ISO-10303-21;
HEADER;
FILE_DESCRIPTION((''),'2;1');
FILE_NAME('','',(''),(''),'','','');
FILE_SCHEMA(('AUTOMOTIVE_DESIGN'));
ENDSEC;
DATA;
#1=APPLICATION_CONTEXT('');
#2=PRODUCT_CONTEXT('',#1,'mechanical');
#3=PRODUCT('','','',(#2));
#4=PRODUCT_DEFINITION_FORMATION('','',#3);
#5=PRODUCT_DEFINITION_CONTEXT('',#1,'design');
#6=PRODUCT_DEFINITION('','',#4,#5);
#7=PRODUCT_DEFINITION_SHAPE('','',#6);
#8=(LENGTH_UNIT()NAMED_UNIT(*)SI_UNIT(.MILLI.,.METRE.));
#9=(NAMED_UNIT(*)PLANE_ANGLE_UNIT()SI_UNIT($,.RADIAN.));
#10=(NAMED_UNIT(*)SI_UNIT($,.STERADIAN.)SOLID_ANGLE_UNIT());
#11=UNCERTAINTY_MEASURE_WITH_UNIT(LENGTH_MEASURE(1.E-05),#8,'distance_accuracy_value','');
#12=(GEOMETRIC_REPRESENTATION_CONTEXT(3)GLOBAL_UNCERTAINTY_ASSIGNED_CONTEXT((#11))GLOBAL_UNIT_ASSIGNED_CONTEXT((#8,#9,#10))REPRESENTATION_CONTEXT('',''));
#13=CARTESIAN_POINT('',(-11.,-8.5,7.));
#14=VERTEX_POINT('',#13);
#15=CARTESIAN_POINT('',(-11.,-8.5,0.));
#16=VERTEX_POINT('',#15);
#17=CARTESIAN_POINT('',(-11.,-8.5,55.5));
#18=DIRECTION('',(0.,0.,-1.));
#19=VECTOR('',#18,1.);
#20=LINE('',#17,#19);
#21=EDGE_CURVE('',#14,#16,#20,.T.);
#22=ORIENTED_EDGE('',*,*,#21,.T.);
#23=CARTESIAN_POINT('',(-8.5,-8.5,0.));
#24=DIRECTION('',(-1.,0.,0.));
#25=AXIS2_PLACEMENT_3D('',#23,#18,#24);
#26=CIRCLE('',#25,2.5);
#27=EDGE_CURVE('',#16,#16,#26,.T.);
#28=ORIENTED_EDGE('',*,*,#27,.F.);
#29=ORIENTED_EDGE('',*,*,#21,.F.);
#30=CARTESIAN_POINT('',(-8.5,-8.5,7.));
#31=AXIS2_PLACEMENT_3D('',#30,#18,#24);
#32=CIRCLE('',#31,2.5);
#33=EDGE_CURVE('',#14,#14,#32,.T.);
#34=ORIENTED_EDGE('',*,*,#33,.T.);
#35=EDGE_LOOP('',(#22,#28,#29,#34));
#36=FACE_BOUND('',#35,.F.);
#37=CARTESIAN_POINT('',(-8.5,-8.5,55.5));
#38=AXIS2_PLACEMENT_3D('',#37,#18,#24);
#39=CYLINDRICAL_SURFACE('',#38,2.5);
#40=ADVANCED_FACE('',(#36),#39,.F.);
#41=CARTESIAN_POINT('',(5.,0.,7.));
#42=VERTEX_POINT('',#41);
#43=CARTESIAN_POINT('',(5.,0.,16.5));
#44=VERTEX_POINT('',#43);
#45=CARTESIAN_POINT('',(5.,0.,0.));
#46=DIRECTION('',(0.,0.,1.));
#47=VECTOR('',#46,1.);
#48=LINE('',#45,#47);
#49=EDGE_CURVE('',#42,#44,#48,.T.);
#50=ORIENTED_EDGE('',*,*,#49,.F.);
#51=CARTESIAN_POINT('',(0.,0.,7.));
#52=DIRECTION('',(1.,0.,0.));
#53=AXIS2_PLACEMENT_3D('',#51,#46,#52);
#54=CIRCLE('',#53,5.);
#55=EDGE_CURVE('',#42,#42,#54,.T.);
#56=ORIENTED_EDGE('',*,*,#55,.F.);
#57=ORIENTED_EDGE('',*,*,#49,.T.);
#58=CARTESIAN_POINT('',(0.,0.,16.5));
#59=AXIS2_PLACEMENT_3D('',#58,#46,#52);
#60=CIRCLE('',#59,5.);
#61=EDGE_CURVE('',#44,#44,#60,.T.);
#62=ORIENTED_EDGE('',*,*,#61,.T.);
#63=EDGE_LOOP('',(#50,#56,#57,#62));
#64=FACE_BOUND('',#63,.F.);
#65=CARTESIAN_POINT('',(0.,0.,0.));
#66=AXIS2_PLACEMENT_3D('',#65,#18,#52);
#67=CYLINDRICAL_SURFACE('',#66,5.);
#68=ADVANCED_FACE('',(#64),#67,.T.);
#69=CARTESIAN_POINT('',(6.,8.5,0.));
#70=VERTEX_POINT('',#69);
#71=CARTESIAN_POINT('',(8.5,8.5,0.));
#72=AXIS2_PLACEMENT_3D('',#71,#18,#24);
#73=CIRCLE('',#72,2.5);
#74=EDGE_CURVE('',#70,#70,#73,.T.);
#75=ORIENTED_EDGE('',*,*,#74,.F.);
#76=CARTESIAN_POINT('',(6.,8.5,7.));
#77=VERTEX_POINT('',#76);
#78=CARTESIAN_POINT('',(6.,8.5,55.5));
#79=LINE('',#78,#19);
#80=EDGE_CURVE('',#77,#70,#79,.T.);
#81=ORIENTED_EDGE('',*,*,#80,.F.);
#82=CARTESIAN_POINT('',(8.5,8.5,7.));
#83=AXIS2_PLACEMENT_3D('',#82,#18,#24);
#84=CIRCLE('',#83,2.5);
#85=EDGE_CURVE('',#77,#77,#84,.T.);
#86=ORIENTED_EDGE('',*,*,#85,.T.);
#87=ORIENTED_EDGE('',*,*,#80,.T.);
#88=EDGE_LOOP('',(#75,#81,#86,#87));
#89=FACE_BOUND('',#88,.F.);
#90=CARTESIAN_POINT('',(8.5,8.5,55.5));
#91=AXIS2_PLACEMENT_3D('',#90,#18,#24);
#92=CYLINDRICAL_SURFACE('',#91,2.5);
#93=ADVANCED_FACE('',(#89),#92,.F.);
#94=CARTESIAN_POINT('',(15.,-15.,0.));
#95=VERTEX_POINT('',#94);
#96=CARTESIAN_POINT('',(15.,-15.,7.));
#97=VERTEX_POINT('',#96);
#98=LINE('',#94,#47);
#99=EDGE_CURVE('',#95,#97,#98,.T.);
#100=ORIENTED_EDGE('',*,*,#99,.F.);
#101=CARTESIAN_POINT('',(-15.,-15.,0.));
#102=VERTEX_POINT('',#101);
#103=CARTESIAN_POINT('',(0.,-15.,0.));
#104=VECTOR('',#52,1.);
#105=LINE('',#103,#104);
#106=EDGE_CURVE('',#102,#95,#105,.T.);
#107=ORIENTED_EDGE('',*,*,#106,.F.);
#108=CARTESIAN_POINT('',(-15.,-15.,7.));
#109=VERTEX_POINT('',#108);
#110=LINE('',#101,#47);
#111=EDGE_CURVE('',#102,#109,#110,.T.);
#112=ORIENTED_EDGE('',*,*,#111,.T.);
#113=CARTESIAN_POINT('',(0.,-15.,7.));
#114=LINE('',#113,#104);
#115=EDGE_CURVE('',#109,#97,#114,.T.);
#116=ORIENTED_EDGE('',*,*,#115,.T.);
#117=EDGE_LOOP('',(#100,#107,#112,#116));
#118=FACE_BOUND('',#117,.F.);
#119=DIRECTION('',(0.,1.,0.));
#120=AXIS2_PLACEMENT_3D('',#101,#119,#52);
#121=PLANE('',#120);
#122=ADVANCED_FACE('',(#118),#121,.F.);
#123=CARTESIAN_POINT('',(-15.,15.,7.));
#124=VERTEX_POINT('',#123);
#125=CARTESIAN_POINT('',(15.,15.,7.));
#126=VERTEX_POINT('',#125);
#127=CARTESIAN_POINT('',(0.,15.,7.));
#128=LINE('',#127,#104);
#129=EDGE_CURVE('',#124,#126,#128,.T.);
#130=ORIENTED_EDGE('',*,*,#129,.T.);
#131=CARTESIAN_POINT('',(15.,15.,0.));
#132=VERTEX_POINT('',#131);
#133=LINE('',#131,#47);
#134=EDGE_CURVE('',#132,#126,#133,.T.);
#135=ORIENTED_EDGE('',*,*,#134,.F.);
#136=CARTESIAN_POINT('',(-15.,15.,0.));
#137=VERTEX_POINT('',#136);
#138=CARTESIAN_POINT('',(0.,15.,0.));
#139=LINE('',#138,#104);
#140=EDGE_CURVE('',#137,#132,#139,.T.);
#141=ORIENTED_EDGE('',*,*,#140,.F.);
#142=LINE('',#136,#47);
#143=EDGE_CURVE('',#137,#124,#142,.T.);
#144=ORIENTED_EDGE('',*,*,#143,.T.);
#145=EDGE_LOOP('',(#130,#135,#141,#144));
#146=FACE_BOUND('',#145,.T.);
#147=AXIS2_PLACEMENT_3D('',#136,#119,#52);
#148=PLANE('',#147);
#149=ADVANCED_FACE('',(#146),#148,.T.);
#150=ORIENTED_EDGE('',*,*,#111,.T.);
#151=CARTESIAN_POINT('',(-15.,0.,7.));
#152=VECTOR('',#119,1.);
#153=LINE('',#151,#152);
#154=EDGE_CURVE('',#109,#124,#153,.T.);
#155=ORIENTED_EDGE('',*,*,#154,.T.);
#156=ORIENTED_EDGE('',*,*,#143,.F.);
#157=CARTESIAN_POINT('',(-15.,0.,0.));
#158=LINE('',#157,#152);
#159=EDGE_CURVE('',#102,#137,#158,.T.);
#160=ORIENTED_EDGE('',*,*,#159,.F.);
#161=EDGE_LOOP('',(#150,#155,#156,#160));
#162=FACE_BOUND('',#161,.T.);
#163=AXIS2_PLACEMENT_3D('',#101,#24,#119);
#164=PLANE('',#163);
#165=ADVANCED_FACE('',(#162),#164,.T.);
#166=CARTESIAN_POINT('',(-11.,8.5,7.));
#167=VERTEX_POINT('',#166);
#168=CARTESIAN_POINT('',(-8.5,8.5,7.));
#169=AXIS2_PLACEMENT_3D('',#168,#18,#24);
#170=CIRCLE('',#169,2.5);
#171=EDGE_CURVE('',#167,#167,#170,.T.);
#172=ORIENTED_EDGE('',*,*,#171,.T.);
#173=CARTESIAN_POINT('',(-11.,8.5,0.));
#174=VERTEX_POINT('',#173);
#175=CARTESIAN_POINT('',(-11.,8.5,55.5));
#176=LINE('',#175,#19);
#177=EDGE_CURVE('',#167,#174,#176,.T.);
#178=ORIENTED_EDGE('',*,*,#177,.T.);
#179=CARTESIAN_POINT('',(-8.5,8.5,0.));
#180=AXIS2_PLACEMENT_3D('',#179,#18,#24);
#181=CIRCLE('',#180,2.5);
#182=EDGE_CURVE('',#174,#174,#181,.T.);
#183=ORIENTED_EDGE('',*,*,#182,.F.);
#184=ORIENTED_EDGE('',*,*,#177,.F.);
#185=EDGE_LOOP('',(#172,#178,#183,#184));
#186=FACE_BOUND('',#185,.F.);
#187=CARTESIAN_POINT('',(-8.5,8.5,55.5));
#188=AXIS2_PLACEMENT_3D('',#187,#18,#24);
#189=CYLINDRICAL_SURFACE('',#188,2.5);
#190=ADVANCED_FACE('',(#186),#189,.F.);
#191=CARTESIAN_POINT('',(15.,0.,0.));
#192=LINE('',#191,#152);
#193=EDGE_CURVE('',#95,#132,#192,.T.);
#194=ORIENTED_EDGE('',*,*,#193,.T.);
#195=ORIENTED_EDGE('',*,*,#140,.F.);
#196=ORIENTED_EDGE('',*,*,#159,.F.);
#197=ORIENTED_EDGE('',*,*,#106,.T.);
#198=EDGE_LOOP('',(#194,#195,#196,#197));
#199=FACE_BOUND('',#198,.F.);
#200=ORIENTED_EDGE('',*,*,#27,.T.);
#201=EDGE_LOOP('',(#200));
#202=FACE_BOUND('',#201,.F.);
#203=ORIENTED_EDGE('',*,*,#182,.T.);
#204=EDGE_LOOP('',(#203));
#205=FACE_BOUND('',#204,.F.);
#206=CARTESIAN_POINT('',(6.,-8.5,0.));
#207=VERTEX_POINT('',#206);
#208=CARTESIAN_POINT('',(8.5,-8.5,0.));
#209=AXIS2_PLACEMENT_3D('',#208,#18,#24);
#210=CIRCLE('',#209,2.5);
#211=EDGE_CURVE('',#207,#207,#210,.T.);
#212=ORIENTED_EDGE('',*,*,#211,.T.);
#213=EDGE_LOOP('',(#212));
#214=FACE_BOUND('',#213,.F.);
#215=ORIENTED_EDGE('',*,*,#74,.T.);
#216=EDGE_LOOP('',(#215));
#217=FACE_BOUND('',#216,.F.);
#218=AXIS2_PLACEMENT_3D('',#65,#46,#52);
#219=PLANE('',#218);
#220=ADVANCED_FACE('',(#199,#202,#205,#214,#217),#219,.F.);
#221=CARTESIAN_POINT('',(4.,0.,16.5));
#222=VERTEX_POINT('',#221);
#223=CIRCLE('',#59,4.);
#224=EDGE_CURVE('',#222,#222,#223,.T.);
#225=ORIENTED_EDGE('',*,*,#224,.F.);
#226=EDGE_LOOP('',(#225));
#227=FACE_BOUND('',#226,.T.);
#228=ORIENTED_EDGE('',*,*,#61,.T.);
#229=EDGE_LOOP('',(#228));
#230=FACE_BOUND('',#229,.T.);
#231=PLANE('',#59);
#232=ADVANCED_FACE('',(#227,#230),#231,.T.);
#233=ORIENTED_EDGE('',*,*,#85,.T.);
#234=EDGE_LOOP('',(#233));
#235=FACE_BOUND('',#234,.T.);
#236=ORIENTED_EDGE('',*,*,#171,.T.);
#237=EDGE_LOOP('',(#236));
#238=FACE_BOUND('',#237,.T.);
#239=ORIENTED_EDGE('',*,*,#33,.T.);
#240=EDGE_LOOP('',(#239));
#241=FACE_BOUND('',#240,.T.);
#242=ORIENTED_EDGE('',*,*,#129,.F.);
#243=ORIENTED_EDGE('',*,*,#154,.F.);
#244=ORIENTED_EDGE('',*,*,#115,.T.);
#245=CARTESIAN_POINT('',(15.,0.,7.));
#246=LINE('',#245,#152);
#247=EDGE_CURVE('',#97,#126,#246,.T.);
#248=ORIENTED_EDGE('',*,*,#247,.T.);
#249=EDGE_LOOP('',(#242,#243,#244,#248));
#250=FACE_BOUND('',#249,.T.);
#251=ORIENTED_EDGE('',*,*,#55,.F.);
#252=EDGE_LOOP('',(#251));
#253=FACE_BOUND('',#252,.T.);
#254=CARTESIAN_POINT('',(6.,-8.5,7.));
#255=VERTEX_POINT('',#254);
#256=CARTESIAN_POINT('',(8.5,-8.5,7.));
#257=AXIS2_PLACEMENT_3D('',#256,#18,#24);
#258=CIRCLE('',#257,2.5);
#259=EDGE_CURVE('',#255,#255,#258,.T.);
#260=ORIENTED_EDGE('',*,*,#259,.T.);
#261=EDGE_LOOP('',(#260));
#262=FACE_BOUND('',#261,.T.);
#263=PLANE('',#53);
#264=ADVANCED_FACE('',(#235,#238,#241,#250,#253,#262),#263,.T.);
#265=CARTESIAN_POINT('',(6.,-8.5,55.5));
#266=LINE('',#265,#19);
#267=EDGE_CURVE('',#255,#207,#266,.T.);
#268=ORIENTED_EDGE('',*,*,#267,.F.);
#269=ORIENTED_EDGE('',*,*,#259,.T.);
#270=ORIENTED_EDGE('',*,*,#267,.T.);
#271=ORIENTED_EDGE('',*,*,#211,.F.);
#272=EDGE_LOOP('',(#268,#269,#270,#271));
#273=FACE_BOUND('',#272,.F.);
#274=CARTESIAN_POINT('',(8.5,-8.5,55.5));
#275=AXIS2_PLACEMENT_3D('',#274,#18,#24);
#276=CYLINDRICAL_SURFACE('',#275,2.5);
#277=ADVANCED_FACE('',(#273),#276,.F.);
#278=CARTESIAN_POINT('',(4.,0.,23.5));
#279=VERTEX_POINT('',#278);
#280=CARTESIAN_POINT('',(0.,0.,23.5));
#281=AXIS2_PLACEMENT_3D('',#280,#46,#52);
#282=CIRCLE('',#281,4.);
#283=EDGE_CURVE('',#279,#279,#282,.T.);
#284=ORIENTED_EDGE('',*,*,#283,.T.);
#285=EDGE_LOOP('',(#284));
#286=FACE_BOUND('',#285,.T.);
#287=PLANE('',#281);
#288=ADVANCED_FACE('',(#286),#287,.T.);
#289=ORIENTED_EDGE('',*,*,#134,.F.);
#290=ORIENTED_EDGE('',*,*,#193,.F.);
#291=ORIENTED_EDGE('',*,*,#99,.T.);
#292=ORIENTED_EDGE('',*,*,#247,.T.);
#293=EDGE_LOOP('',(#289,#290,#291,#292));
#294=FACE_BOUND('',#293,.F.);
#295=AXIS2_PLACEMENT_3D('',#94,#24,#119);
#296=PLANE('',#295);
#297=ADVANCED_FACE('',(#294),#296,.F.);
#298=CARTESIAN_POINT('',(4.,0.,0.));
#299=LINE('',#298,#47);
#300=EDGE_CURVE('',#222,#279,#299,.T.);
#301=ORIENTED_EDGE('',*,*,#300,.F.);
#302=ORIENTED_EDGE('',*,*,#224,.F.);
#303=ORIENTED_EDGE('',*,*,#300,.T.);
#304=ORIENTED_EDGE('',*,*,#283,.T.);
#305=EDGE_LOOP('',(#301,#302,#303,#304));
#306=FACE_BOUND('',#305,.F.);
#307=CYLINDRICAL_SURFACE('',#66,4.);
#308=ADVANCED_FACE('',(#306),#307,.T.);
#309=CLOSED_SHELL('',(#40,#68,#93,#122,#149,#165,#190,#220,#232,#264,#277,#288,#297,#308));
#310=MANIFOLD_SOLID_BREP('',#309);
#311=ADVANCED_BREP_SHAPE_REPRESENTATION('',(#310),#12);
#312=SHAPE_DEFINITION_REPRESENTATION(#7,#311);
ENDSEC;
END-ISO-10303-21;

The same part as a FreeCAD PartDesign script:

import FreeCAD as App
import Part
import Sketcher

V = App.Vector

doc = App.newDocument("Part")
params = doc.addObject("Spreadsheet::Sheet", "Params")
for row, (alias, value) in enumerate([
    ("sketch1_diameter", "10 mm"),
    ("sketch1_width", "30 mm"),
    ("pad1_length", "7 mm"),
    ("sketch2_diameter", "10 mm"),
    ("sketch2_diameter2", "8 mm"),
    ("pad2_length", "16.5 mm"),
    ("sketch3_diameter", "8 mm"),
    ("pad3_length", "23.5 mm"),
    ("sketch4_diameter", "5 mm"),
    ("hole_diameter", "5 mm"),
], start=1):
    params.set(f"A{row}", alias)
    params.set(f"B{row}", "=" + value)
    params.setAlias(f"B{row}", alias)

body = doc.addObject("PartDesign::Body", "Body")

# Sketch on XY plane
sketch1 = body.newObject("Sketcher::SketchObject", "Sketch")
sketch1.AttachmentSupport = (doc.getObject("XY_Plane"), [""])
sketch1.MapMode = "FlatFace"
sketch1.addGeometry(Part.LineSegment(V(-15, 15, 0), V(-15, -15, 0)), False)
sketch1.addGeometry(Part.LineSegment(V(-15, -15, 0), V(15, -15, 0)), False)
sketch1.addGeometry(Part.LineSegment(V(15, -15, 0), V(15, 15, 0)), False)
sketch1.addGeometry(Part.LineSegment(V(15, 15, 0), V(-15, 15, 0)), False)
sketch1.addGeometry(Part.Circle(V(0, 0, 0), V(0, 0, 1), 5), False)
sketch1.addConstraint(Sketcher.Constraint("Coincident", 0, 2, 1, 1))
sketch1.addConstraint(Sketcher.Constraint("Coincident", 1, 2, 2, 1))
sketch1.addConstraint(Sketcher.Constraint("Coincident", 2, 2, 3, 1))
sketch1.addConstraint(Sketcher.Constraint("Coincident", 3, 2, 0, 1))
sketch1.addConstraint(Sketcher.Constraint("Vertical", 0))
sketch1.addConstraint(Sketcher.Constraint("Horizontal", 1))
sketch1.addConstraint(Sketcher.Constraint("Vertical", 2))
sketch1.addConstraint(Sketcher.Constraint("Horizontal", 3))
sketch1.addConstraint(Sketcher.Constraint("Coincident", 4, 3, -1, 1))
sketch1.addConstraint(Sketcher.Constraint("Symmetric", 0, 2, 2, 2, -1, 1))
sketch1.addConstraint(Sketcher.Constraint("Equal", 3, 0))
sketch1.addConstraint(Sketcher.Constraint("Diameter", 4, 10.0))
sketch1.addConstraint(Sketcher.Constraint("DistanceX", 1, 1, 1, 2, 30.0))
sketch1.setExpression("Constraints[11]", "Params.sketch1_diameter")
sketch1.setExpression("Constraints[12]", "Params.sketch1_width")
pad1 = body.newObject("PartDesign::Pad", "Pad")
pad1.Profile = sketch1
pad1.setExpression("Length", "Params.pad1_length")

# Sketch on XY plane
sketch2 = body.newObject("Sketcher::SketchObject", "Sketch001")
sketch2.AttachmentSupport = (doc.getObject("XY_Plane"), [""])
sketch2.MapMode = "FlatFace"
sketch2.addGeometry(Part.Circle(V(0, 0, 0), V(0, 0, 1), 5), False)
sketch2.addGeometry(Part.Circle(V(0, 0, 0), V(0, 0, 1), 4), False)
sketch2.addConstraint(Sketcher.Constraint("Coincident", 0, 3, -1, 1))
sketch2.addConstraint(Sketcher.Constraint("Coincident", 1, 3, -1, 1))
sketch2.addConstraint(Sketcher.Constraint("Diameter", 0, 10.0))
sketch2.addConstraint(Sketcher.Constraint("Diameter", 1, 8.0))
sketch2.setExpression("Constraints[2]", "Params.sketch2_diameter")
sketch2.setExpression("Constraints[3]", "Params.sketch2_diameter2")
pad2 = body.newObject("PartDesign::Pad", "Pad001")
pad2.Profile = sketch2
pad2.setExpression("Length", "Params.pad2_length")

# Sketch on XY plane
sketch3 = body.newObject("Sketcher::SketchObject", "Sketch002")
sketch3.AttachmentSupport = (doc.getObject("XY_Plane"), [""])
sketch3.MapMode = "FlatFace"
sketch3.addGeometry(Part.Circle(V(0, 0, 0), V(0, 0, 1), 4), False)
sketch3.addConstraint(Sketcher.Constraint("Coincident", 0, 3, -1, 1))
sketch3.addConstraint(Sketcher.Constraint("Diameter", 0, 8.0))
sketch3.setExpression("Constraints[1]", "Params.sketch3_diameter")
pad3 = body.newObject("PartDesign::Pad", "Pad002")
pad3.Profile = sketch3
pad3.setExpression("Length", "Params.pad3_length")

# Sketch on XY plane
sketch4 = body.newObject("Sketcher::SketchObject", "Sketch003")
sketch4.AttachmentSupport = (doc.getObject("XY_Plane"), [""])
sketch4.MapMode = "FlatFace"
sketch4.AttachmentOffset = App.Placement(V(0, 0, 7), App.Rotation())
sketch4.addGeometry(Part.Circle(V(8.5, 8.5, 0), V(0, 0, 1), 2.5), False)
sketch4.addGeometry(Part.Circle(V(-8.5, 8.5, 0), V(0, 0, 1), 2.5), False)
sketch4.addGeometry(Part.Circle(V(-8.5, -8.5, 0), V(0, 0, 1), 2.5), False)
sketch4.addGeometry(Part.Circle(V(8.5, -8.5, 0), V(0, 0, 1), 2.5), False)
sketch4.addConstraint(Sketcher.Constraint("Equal", 0, 1))
sketch4.addConstraint(Sketcher.Constraint("Equal", 1, 2))
sketch4.addConstraint(Sketcher.Constraint("Equal", 2, 3))
sketch4.addConstraint(Sketcher.Constraint("Symmetric", 0, 3, 2, 3, -1, 1))
sketch4.addConstraint(Sketcher.Constraint("Symmetric", 1, 3, 3, 3, -1, 1))
sketch4.addConstraint(Sketcher.Constraint("Symmetric", 0, 3, 1, 3, -2))
sketch4.addConstraint(Sketcher.Constraint("Diameter", 0, 5.0))
sketch4.addConstraint(Sketcher.Constraint("DistanceX", 1, 3, 0, 3, 17.0))
sketch4.addConstraint(Sketcher.Constraint("DistanceY", 2, 3, 1, 3, 17.0))
sketch4.setExpression("Constraints[6]", "Params.sketch4_diameter")
doc.recompute()
hole = body.newObject("PartDesign::Hole", "Hole")
hole.Profile = sketch4
hole.ThreadType = "None"
hole.setExpression("Diameter", "Params.hole_diameter")
hole.DepthType = "ThroughAll"

doc.recompute()
